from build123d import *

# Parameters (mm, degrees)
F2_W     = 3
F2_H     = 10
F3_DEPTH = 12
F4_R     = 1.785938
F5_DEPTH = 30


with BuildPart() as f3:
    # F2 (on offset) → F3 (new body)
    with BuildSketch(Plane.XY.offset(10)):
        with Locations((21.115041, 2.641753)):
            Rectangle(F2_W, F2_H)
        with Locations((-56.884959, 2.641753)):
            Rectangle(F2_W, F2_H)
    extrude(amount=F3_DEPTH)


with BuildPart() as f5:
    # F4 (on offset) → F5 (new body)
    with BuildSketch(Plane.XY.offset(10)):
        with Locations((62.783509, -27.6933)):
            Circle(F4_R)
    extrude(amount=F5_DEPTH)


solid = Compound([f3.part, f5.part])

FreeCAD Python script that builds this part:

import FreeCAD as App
import Part
import Sketcher

V = App.Vector
Q = App.Units.Quantity


def add_polygon(sketch, points):
    """Adds a closed chain of lines whose ends are joined by coincident constraints."""
    first, n = sketch.GeometryCount, len(points)
    for a, b in zip(points, points[1:] + points[:1]):
        sketch.addGeometry(Part.LineSegment(App.Vector(*a, 0), App.Vector(*b, 0)), False)
    for i in range(n):
        sketch.addConstraint(Sketcher.Constraint("Coincident", first + i, 2, first + (i + 1) % n, 1))

doc = App.newDocument("Part")
body = doc.addObject("PartDesign::Body", "Body")
body.AllowCompound = True

# Sketch on XY plane
sketch1 = body.newObject("Sketcher::SketchObject", "Sketch")
sketch1.AttachmentSupport = (doc.getObject("XY_Plane"), [""])
sketch1.MapMode = "FlatFace"
sketch1.AttachmentOffset = App.Placement(V(0, 0, 10), App.Rotation())
add_polygon(sketch1, [(19.6, 7.6), (19.6, -2.4), (22.6, -2.4), (22.6, 7.6)])  # lines 0-3
add_polygon(sketch1, [(-58.4, 7.6), (-58.4, -2.4), (-55.4, -2.4), (-55.4, 7.6)])  # lines 4-7
sketch1.addConstraint([
    Sketcher.Constraint("Vertical", 0),
    Sketcher.Constraint("Horizontal", 1),
    Sketcher.Constraint("Vertical", 2),
    Sketcher.Constraint("Horizontal", 3),
    Sketcher.Constraint("Vertical", 4),
    Sketcher.Constraint("Horizontal", 5),
    Sketcher.Constraint("Vertical", 6),
    Sketcher.Constraint("Horizontal", 7),
    Sketcher.Constraint("Horizontal", 1, 2, 4, 2),
    Sketcher.Constraint("Horizontal", 3, 2, 6, 2),
    Sketcher.Constraint("Equal", 3, 5),
    Sketcher.Constraint("DistanceX", 1, 1, 1, 2, Q("3 mm")),
    Sketcher.Constraint("DistanceY", 0, 2, 0, 1, Q("10 mm")),
    Sketcher.Constraint("DistanceX", 4, 2, 0, 2, Q("78 mm")),
    Sketcher.Constraint("DistanceX", -1, 1, 0, 2, Q("19.615041 mm")),
    Sketcher.Constraint("DistanceY", 0, 2, -1, 1, Q("2.358247 mm")),
])
pad1 = body.newObject("PartDesign::Pad", "Pad")
pad1.Profile = sketch1
pad1.Length = 12
body2 = doc.addObject("PartDesign::Body", "Body001")

# Sketch on XY plane
sketch2 = body2.newObject("Sketcher::SketchObject", "Sketch001")
sketch2.AttachmentSupport = (doc.getObject("XY_Plane001"), [""])
sketch2.MapMode = "FlatFace"
sketch2.AttachmentOffset = App.Placement(V(0, 0, 10), App.Rotation())
sketch2.addGeometry(Part.Circle(V(62.8, -27.7, 0), V(0, 0, 1), 1.8), False)
sketch2.addConstraint([
    Sketcher.Constraint("Diameter", 0, Q("3.571876 mm")),
    Sketcher.Constraint("DistanceY", 0, 3, -1, 1, Q("27.6933 mm")),
    Sketcher.Constraint("DistanceX", -1, 1, 0, 3, Q("62.783509 mm")),
])
pad2 = body2.newObject("PartDesign::Pad", "Pad001")
pad2.Profile = sketch2
pad2.Length = 30

doc.recompute()
